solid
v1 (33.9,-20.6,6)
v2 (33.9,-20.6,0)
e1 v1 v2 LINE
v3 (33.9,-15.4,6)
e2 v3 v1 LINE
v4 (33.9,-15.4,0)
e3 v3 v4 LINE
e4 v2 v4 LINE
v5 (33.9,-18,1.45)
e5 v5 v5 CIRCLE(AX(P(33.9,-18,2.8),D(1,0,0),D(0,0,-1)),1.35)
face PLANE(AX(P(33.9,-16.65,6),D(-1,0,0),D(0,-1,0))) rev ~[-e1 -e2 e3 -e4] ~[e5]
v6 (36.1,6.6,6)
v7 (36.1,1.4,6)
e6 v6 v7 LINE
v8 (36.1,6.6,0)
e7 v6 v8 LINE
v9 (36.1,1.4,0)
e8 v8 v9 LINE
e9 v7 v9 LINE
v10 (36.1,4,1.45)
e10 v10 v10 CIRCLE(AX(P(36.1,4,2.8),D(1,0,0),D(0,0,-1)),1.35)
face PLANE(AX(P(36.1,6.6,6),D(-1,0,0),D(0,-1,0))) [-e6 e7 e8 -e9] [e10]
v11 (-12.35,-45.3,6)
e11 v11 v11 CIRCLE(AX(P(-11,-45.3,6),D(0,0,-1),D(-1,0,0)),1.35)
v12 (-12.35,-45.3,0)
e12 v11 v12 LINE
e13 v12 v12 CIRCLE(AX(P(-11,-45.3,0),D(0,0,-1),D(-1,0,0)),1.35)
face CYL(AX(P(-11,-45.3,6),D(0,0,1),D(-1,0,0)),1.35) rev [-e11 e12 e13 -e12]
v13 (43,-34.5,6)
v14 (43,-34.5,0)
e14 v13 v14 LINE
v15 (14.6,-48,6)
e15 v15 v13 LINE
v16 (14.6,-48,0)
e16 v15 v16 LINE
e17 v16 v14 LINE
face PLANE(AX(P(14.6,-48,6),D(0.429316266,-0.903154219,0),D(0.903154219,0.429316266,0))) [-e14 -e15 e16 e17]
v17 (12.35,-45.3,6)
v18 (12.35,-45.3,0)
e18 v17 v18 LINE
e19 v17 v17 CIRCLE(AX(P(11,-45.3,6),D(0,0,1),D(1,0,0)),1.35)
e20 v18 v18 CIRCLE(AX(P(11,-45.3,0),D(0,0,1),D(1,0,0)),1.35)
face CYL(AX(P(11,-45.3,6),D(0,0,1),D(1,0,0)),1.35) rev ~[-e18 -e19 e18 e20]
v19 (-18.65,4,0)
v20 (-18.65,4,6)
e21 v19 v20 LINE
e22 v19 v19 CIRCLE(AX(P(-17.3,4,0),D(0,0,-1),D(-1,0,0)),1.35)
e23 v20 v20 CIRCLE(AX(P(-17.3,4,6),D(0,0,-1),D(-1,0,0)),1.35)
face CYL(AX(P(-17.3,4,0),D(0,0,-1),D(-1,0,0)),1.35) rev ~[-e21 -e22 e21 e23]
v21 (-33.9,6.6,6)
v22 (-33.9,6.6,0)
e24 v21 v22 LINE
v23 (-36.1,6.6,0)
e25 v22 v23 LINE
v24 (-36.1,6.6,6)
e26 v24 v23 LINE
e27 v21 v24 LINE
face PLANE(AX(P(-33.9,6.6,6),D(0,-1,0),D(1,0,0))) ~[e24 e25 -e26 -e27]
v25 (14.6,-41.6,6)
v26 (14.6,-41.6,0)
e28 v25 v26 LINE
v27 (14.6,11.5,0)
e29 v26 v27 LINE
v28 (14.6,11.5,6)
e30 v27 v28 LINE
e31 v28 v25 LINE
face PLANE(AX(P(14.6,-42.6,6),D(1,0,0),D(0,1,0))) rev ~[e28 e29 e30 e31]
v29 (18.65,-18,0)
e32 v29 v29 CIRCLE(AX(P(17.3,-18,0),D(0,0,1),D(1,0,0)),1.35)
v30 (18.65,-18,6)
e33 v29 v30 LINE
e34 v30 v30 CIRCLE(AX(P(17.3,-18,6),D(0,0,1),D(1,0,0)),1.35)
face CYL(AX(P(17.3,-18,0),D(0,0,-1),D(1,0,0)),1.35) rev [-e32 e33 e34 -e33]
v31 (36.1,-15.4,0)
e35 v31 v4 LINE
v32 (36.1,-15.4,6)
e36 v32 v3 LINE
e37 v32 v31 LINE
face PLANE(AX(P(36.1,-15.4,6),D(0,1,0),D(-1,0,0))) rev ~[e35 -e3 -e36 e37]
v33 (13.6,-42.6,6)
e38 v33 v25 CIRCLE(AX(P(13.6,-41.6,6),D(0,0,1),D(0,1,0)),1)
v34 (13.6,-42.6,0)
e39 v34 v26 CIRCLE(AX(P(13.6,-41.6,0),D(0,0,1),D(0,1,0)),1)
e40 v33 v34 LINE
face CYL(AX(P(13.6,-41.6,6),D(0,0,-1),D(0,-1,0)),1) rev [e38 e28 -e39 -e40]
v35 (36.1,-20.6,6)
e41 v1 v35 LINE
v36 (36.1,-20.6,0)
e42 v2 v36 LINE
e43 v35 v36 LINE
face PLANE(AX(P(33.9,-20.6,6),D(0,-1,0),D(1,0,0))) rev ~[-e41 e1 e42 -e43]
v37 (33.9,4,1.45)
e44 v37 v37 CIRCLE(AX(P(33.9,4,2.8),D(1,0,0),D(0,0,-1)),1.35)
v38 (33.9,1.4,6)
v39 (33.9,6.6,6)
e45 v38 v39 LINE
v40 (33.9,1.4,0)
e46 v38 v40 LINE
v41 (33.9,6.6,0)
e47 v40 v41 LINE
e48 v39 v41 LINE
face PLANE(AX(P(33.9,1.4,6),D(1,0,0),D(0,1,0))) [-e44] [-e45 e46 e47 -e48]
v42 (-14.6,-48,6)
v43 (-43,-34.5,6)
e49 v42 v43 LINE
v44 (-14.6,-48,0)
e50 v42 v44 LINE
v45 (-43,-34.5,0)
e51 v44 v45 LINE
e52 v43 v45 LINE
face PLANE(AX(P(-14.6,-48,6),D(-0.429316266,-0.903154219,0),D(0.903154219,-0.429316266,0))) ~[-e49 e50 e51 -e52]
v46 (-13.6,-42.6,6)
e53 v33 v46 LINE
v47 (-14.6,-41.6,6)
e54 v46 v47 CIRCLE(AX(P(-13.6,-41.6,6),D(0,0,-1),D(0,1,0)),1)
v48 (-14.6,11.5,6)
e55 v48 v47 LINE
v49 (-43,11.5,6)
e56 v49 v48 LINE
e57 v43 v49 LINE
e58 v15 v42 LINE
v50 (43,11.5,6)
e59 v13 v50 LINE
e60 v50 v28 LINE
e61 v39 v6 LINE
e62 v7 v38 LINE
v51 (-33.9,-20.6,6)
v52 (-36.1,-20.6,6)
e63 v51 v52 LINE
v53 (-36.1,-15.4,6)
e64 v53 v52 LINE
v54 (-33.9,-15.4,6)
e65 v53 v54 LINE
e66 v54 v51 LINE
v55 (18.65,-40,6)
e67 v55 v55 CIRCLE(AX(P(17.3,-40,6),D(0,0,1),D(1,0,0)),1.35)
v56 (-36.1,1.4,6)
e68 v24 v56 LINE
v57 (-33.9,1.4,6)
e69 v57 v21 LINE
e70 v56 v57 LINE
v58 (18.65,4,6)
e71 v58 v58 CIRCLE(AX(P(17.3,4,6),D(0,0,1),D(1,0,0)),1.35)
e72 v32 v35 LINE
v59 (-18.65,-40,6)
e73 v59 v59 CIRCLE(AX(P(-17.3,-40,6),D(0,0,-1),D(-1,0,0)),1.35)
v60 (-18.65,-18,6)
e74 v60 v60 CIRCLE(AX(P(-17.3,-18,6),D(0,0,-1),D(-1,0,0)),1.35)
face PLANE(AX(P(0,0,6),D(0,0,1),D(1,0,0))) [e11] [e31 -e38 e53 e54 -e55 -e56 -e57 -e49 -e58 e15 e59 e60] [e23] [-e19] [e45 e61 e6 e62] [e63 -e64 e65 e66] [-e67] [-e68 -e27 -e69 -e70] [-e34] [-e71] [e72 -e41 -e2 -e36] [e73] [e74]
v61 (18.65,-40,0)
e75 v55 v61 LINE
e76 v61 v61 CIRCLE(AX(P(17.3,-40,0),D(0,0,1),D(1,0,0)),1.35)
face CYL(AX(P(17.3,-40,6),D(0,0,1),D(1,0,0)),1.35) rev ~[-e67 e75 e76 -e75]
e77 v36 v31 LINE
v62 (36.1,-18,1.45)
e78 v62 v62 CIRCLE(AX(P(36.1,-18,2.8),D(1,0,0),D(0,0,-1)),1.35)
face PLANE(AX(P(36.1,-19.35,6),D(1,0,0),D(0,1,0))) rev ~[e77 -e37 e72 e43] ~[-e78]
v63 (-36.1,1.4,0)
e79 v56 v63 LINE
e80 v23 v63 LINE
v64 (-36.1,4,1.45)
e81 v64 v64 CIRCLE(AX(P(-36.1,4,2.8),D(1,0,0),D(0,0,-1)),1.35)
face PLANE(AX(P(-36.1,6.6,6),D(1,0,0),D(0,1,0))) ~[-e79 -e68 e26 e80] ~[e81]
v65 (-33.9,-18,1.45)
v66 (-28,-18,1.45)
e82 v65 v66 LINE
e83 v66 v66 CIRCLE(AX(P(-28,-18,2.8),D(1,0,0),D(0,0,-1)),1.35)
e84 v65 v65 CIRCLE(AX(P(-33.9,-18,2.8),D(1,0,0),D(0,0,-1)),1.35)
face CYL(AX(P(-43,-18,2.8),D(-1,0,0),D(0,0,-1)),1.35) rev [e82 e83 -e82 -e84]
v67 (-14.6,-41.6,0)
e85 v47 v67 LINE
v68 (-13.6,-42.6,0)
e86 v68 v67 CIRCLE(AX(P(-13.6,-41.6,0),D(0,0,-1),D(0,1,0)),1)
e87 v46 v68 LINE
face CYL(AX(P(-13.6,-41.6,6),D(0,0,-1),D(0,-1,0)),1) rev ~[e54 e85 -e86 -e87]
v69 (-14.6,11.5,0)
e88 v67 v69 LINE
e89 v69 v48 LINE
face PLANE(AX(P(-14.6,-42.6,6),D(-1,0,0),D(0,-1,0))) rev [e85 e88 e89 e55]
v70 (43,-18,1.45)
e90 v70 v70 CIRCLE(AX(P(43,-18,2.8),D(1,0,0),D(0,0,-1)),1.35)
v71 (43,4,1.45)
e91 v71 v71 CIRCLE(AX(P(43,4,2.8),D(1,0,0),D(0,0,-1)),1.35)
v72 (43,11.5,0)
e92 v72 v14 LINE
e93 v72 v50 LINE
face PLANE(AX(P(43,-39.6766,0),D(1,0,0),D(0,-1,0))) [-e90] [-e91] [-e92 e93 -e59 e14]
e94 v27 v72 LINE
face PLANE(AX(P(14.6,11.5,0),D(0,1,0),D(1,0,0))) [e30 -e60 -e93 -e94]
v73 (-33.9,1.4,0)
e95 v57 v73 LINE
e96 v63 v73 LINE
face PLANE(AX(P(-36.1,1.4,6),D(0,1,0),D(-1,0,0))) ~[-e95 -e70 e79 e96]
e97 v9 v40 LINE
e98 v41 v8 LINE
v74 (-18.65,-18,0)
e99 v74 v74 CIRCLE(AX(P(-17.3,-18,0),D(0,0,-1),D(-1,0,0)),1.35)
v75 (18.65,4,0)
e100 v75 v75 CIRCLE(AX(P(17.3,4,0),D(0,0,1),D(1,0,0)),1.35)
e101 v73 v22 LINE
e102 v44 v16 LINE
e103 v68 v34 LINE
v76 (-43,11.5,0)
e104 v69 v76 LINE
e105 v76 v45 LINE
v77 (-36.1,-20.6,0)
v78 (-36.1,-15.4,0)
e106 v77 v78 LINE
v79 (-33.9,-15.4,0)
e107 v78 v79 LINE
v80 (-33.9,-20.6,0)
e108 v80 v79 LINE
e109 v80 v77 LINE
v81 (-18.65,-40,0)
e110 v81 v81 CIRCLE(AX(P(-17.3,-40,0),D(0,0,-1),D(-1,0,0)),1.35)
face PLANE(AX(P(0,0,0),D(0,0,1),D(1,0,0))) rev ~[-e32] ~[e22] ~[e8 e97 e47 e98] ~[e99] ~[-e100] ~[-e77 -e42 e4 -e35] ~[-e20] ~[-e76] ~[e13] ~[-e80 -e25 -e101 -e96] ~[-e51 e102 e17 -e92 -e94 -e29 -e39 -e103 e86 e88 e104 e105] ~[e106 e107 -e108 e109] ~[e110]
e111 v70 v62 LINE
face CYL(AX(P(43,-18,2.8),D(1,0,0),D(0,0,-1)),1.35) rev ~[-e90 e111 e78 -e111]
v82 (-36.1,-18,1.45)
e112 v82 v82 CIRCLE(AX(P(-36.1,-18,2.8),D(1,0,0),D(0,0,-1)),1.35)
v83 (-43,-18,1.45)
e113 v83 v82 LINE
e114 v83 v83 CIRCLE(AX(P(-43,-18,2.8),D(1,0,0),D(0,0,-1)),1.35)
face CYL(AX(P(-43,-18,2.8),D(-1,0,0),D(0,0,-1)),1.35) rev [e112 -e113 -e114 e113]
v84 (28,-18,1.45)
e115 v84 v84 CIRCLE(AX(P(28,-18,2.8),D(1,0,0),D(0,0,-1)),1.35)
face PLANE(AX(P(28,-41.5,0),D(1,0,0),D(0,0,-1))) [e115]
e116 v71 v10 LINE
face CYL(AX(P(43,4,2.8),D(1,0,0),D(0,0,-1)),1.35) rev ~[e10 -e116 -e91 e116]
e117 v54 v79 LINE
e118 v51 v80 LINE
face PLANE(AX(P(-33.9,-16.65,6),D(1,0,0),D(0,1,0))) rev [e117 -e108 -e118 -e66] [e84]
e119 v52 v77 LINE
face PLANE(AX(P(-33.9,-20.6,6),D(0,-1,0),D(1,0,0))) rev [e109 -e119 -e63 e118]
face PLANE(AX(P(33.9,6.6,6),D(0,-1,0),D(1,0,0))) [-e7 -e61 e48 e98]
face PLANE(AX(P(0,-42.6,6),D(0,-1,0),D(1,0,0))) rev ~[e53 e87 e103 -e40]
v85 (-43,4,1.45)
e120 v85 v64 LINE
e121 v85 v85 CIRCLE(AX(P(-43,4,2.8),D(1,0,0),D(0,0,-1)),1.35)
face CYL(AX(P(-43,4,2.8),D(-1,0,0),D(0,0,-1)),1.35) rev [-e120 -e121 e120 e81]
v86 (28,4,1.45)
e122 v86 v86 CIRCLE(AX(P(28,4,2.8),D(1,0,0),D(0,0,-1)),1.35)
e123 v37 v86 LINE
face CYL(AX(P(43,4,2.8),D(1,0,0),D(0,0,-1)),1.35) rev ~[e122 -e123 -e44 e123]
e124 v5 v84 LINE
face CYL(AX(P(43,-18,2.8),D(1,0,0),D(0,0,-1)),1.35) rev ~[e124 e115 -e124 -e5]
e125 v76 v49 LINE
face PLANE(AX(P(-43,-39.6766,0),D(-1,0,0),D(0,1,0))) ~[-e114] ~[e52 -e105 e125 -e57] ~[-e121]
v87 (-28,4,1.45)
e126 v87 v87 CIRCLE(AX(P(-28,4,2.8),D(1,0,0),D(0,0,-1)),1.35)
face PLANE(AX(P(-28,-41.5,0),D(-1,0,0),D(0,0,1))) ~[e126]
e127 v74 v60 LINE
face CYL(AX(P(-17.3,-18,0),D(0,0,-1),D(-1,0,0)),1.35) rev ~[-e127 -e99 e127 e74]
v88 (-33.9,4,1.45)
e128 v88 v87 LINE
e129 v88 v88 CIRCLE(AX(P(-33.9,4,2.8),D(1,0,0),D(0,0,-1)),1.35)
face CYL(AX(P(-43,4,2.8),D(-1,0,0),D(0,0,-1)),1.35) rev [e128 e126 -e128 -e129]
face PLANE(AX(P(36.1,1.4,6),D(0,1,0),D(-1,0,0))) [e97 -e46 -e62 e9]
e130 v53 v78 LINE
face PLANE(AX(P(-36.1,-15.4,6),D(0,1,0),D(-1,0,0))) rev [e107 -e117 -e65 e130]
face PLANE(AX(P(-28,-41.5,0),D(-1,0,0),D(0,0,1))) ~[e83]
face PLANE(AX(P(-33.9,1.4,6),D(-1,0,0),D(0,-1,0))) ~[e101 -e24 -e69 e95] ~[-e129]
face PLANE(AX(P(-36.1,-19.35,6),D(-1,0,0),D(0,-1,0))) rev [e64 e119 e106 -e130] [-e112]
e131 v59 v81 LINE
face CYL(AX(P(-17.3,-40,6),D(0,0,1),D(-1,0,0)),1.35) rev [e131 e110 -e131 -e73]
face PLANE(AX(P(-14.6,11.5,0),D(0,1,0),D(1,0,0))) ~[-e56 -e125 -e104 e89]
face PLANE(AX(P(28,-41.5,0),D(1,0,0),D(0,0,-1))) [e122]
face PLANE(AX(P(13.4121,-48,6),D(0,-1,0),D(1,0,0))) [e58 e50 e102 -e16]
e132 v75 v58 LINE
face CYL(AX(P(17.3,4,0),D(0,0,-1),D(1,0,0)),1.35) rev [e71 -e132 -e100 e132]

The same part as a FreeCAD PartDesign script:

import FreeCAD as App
import Part
import Sketcher
from FreeCAD import Vector
Q = App.Units.Quantity


def edges_at(feature, points):
    """Names of the edges that pass closest to the given points."""
    edges = feature.Shape.Edges
    near = lambda p: min(range(len(edges)), key=lambda i: edges[i].distToShape(Part.Vertex(*p))[0])
    return sorted({f"Edge{near(p) + 1}" for p in points})


def add_polygon(sketch, points):
    """Adds a closed chain of lines whose ends are joined by coincident constraints."""
    first, n = sketch.GeometryCount, len(points)
    for a, b in zip(points, points[1:] + points[:1]):
        sketch.addGeometry(Part.LineSegment(App.Vector(*a, 0), App.Vector(*b, 0)), False)
    for i in range(n):
        sketch.addConstraint(Sketcher.Constraint("Coincident", first + i, 2, first + (i + 1) % n, 1))

doc = App.newDocument("Part")
body = doc.addObject("PartDesign::Body", "Body")

sketch1 = doc.addObject("Sketcher::SketchObject", "Sketch")
body.addObject(sketch1)
sketch1.AttachmentSupport = (doc.XY_Plane, [""])
sketch1.MapMode = "FlatFace"
add_polygon(sketch1, [(43, -41.5), (43, 11.5), (14.6, 11.5), (14.6, -41.5)])
sketch1.addGeometry(Part.Circle(Vector(17.3, -18, 0), Vector(0, 0, 1), 1.4), False)
sketch1.addGeometry(Part.Circle(Vector(17.3, 4, 0), Vector(0, 0, 1), 1.4), False)
sketch1.addConstraint([
    Sketcher.Constraint("Vertical", 0),
    Sketcher.Constraint("Horizontal", 1),
    Sketcher.Constraint("Vertical", 2),
    Sketcher.Constraint("Horizontal", 3),
    Sketcher.Constraint("Equal", 4, 5),
    Sketcher.Constraint("Vertical", 4, 3, 5, 3),
    Sketcher.Constraint("Diameter", 4, 2.7),
    Sketcher.Constraint("DistanceY", 0, 1, 0, 2, 53.0),
    Sketcher.Constraint("DistanceX", 1, 2, 5, 3, 2.7),
    Sketcher.Constraint("DistanceX", 1, 2, 1, 1, 28.4),
    Sketcher.Constraint("DistanceY", 4, 3, -1, 1, 18.0),
    Sketcher.Constraint("DistanceY", -1, 1, 5, 3, 4.0),
    Sketcher.Constraint("DistanceX", -1, 1, 0, 2, 43.0),
    Sketcher.Constraint("DistanceY", -1, 1, 0, 2, 11.5),
])
pad1 = doc.addObject("PartDesign::Pad", "Pad")
body.addObject(pad1)
pad1.Profile = sketch1
pad1.Length = 6

sketch2 = doc.addObject("Sketcher::SketchObject", "Sketch001")
body.addObject(sketch2)
sketch2.AttachmentSupport = (doc.YZ_Plane, [""])
sketch2.MapMode = "FlatFace"
sketch2.AttachmentOffset = App.Placement(Vector(0, 0, 43), App.Rotation())
sketch2.addGeometry([
    Part.Circle(Vector(4, 2.8, 0), Vector(0, 0, 1), 1.4),
    Part.Circle(Vector(-18, 2.8, 0), Vector(0, 0, 1), 1.4),
], False)
sketch2.addConstraint([
    Sketcher.Constraint("Equal", 0, 1),
    Sketcher.Constraint("Horizontal", 0, 3, 1, 3),
    Sketcher.Constraint("Diameter", 0, 2.7),
    Sketcher.Constraint("DistanceX", -1, 1, 0, 3, 4.0),
    Sketcher.Constraint("DistanceX", 1, 3, -1, 1, 18.0),
    Sketcher.Constraint("DistanceY", -1, 1, 0, 3, 2.8),
])
pocket1 = doc.addObject("PartDesign::Pocket", "Pocket")
body.addObject(pocket1)
pocket1.Profile = sketch2
pocket1.Length = 15

sketch3 = doc.addObject("Sketcher::SketchObject", "Sketch002")
body.addObject(sketch3)
sketch3.AttachmentSupport = (doc.XY_Plane, [""])
sketch3.MapMode = "FlatFace"
sketch3.AttachmentOffset = App.Placement(Vector(0, 0, 6), App.Rotation())
add_polygon(sketch3, [(33.9, 1.4), (36.1, 1.4), (36.1, 6.6), (33.9, 6.6)])
add_polygon(sketch3, [(36.1, -15.4), (33.9, -15.4), (33.9, -20.6), (36.1, -20.6)])
sketch3.addConstraint([
    Sketcher.Constraint("Horizontal", 0),
    Sketcher.Constraint("Vertical", 1),
    Sketcher.Constraint("Horizontal", 2),
    Sketcher.Constraint("Vertical", 3),
    Sketcher.Constraint("Horizontal", 4),
    Sketcher.Constraint("Vertical", 5),
    Sketcher.Constraint("Horizontal", 6),
    Sketcher.Constraint("Vertical", 7),
    Sketcher.Constraint("Vertical", 3, 2, 4, 2),
    Sketcher.Constraint("Vertical", 1, 2, 6, 2),
    Sketcher.Constraint("Equal", 3, 5),
    Sketcher.Constraint("DistanceX", 0, 1, 0, 2, 2.2),
    Sketcher.Constraint("DistanceY", 1, 1, 1, 2, 5.2),
    Sketcher.Constraint("DistanceY", 4, 2, 2, 2, 22.0),
    Sketcher.Constraint("DistanceX", -1, 1, 0, 2, 36.1),
    Sketcher.Constraint("DistanceY", -1, 1, 0, 2, 1.4),
])
pocket2 = doc.addObject("PartDesign::Pocket", "Pocket001")
body.addObject(pocket2)
pocket2.Profile = sketch3
pocket2.Length = 6

sketch4 = doc.addObject("Sketcher::SketchObject", "Sketch003")
body.addObject(sketch4)
sketch4.AttachmentSupport = (doc.XY_Plane, [""])
sketch4.MapMode = "FlatFace"
sketch4.AttachmentOffset = App.Placement(Vector(0, 0, 6), App.Rotation())
add_polygon(sketch4, [(15, -34), (15, -42), (43, -42), (43, -34)])
sketch4.addConstraint([
    Sketcher.Constraint("Vertical", 0),
    Sketcher.Constraint("Horizontal", 1),
    Sketcher.Constraint("Vertical", 2),
    Sketcher.Constraint("Horizontal", 3),
    Sketcher.Constraint("DistanceY", 0, 2, 0, 1, 7.0),
    Sketcher.Constraint("DistanceX", 1, 1, 1, 2, 28.4),
    Sketcher.Constraint("DistanceX", -1, 1, 1, 2, 43.0),
    Sketcher.Constraint("DistanceY", 0, 2, -1, 1, 41.5),
])
pocket3 = doc.addObject("PartDesign::Pocket", "Pocket002")
body.addObject(pocket3)
pocket3.Profile = sketch4
pocket3.Length = 10

sketch5 = doc.addObject("Sketcher::SketchObject", "Sketch004")
body.addObject(sketch5)
sketch5.AttachmentSupport = (doc.XY_Plane, [""])
sketch5.MapMode = "FlatFace"
sketch5.AttachmentOffset = App.Placement(Vector(0, 0, 6), App.Rotation())
add_polygon(sketch5, [(20, -34.5), (14.6, -34.5), (14.6, -42.6), (0, -42.6), (0, -48), (14.6, -48), (20, -42.6)])
sketch5.addGeometry(Part.Circle(Vector(11, -45.3, 0), Vector(0, 0, 1), 1.4), False)
sketch5.addGeometry(Part.Circle(Vector(17.3, -40, 0), Vector(0, 0, 1), 1.4), False)
sketch5.addConstraint([
    Sketcher.Constraint("Horizontal", 0),
    Sketcher.Constraint("Vertical", 1),
    Sketcher.Constraint("Horizontal", 2),
    Sketcher.Constraint("Vertical", 3),
    Sketcher.Constraint("Horizontal", 4),
    Sketcher.Constraint("Vertical", 6),
    Sketcher.Constraint("Equal", 7, 8),
    Sketcher.Constraint("PointOnObject", 2, 2, -2),
    Sketcher.Constraint("Horizontal", 2, 2, 5, 2),
    Sketcher.Constraint("Vertical", 1, 2, 4, 2),
    Sketcher.Constraint("Equal", 0, 3),
    Sketcher.Constraint("Diameter", 7, 2.7),
    Sketcher.Constraint("DistanceX", 0, 2, 0, 1, 5.4),
    Sketcher.Constraint("DistanceX", 2, 2, 2, 1, 14.6),
    Sketcher.Constraint("DistanceY", 1, 2, 1, 1, 8.1),
    Sketcher.Constraint("DistanceX", -1, 1, 7, 3, 11.0),
    Sketcher.Constraint("DistanceY", 8, 3, -1, 1, 40.0),
    Sketcher.Constraint("DistanceY", 3, 2, -1, 1, 48.0),
    Sketcher.Constraint("DistanceY", 7, 3, -1, 1, 45.3),
    Sketcher.Constraint("DistanceX", -1, 1, 8, 3, 17.3),
])
pad2 = doc.addObject("PartDesign::Pad", "Pad001")
body.addObject(pad2)
pad2.Profile = sketch5
pad2.Length = 6
pad2.Reversed = True
doc.recompute()

fillet = doc.addObject("PartDesign::Fillet", "Fillet")
body.addObject(fillet)
fillet.Base = (pad2, edges_at(pad2, [(14.6, -42.6, 3)]))
fillet.Radius = 1

sketch6 = doc.addObject("Sketcher::SketchObject", "Sketch005")
body.addObject(sketch6)
sketch6.AttachmentSupport = (doc.XY_Plane, [""])
sketch6.MapMode = "FlatFace"
sketch6.AttachmentOffset = App.Placement(Vector(0, 0, 6), App.Rotation())
add_polygon(sketch6, [(20, -43), (15, -48), (43, -34), (20, -34)])
sketch6.addConstraint([
    Sketcher.Constraint("Horizontal", 2),
    Sketcher.Constraint("Vertical", 3),
    Sketcher.Constraint("DistanceX", 2, 2, 2, 1, 23.0),
    Sketcher.Constraint("Angle", 0, Q("-135 deg")),
    Sketcher.Constraint("DistanceY", 3, 2, 3, 1, 8.1),
    Sketcher.Constraint("DistanceY", 0, 2, -1, 1, 48.0),
    Sketcher.Constraint("DistanceX", -1, 1, 1, 2, 43.0),
    Sketcher.Constraint("DistanceX", -1, 1, 0, 2, 14.6),
])
pad3 = doc.addObject("PartDesign::Pad", "Pad002")
body.addObject(pad3)
pad3.Profile = sketch6
pad3.Length = 6
pad3.Reversed = True
doc.recompute()

mirrored = doc.addObject("PartDesign::Mirrored", "Mirrored")
body.addObject(mirrored)
mirrored.TransformMode = "Transform body"
mirrored.MirrorPlane = (doc.YZ_Plane, [""])
body.Tip = mirrored

doc.recompute()
